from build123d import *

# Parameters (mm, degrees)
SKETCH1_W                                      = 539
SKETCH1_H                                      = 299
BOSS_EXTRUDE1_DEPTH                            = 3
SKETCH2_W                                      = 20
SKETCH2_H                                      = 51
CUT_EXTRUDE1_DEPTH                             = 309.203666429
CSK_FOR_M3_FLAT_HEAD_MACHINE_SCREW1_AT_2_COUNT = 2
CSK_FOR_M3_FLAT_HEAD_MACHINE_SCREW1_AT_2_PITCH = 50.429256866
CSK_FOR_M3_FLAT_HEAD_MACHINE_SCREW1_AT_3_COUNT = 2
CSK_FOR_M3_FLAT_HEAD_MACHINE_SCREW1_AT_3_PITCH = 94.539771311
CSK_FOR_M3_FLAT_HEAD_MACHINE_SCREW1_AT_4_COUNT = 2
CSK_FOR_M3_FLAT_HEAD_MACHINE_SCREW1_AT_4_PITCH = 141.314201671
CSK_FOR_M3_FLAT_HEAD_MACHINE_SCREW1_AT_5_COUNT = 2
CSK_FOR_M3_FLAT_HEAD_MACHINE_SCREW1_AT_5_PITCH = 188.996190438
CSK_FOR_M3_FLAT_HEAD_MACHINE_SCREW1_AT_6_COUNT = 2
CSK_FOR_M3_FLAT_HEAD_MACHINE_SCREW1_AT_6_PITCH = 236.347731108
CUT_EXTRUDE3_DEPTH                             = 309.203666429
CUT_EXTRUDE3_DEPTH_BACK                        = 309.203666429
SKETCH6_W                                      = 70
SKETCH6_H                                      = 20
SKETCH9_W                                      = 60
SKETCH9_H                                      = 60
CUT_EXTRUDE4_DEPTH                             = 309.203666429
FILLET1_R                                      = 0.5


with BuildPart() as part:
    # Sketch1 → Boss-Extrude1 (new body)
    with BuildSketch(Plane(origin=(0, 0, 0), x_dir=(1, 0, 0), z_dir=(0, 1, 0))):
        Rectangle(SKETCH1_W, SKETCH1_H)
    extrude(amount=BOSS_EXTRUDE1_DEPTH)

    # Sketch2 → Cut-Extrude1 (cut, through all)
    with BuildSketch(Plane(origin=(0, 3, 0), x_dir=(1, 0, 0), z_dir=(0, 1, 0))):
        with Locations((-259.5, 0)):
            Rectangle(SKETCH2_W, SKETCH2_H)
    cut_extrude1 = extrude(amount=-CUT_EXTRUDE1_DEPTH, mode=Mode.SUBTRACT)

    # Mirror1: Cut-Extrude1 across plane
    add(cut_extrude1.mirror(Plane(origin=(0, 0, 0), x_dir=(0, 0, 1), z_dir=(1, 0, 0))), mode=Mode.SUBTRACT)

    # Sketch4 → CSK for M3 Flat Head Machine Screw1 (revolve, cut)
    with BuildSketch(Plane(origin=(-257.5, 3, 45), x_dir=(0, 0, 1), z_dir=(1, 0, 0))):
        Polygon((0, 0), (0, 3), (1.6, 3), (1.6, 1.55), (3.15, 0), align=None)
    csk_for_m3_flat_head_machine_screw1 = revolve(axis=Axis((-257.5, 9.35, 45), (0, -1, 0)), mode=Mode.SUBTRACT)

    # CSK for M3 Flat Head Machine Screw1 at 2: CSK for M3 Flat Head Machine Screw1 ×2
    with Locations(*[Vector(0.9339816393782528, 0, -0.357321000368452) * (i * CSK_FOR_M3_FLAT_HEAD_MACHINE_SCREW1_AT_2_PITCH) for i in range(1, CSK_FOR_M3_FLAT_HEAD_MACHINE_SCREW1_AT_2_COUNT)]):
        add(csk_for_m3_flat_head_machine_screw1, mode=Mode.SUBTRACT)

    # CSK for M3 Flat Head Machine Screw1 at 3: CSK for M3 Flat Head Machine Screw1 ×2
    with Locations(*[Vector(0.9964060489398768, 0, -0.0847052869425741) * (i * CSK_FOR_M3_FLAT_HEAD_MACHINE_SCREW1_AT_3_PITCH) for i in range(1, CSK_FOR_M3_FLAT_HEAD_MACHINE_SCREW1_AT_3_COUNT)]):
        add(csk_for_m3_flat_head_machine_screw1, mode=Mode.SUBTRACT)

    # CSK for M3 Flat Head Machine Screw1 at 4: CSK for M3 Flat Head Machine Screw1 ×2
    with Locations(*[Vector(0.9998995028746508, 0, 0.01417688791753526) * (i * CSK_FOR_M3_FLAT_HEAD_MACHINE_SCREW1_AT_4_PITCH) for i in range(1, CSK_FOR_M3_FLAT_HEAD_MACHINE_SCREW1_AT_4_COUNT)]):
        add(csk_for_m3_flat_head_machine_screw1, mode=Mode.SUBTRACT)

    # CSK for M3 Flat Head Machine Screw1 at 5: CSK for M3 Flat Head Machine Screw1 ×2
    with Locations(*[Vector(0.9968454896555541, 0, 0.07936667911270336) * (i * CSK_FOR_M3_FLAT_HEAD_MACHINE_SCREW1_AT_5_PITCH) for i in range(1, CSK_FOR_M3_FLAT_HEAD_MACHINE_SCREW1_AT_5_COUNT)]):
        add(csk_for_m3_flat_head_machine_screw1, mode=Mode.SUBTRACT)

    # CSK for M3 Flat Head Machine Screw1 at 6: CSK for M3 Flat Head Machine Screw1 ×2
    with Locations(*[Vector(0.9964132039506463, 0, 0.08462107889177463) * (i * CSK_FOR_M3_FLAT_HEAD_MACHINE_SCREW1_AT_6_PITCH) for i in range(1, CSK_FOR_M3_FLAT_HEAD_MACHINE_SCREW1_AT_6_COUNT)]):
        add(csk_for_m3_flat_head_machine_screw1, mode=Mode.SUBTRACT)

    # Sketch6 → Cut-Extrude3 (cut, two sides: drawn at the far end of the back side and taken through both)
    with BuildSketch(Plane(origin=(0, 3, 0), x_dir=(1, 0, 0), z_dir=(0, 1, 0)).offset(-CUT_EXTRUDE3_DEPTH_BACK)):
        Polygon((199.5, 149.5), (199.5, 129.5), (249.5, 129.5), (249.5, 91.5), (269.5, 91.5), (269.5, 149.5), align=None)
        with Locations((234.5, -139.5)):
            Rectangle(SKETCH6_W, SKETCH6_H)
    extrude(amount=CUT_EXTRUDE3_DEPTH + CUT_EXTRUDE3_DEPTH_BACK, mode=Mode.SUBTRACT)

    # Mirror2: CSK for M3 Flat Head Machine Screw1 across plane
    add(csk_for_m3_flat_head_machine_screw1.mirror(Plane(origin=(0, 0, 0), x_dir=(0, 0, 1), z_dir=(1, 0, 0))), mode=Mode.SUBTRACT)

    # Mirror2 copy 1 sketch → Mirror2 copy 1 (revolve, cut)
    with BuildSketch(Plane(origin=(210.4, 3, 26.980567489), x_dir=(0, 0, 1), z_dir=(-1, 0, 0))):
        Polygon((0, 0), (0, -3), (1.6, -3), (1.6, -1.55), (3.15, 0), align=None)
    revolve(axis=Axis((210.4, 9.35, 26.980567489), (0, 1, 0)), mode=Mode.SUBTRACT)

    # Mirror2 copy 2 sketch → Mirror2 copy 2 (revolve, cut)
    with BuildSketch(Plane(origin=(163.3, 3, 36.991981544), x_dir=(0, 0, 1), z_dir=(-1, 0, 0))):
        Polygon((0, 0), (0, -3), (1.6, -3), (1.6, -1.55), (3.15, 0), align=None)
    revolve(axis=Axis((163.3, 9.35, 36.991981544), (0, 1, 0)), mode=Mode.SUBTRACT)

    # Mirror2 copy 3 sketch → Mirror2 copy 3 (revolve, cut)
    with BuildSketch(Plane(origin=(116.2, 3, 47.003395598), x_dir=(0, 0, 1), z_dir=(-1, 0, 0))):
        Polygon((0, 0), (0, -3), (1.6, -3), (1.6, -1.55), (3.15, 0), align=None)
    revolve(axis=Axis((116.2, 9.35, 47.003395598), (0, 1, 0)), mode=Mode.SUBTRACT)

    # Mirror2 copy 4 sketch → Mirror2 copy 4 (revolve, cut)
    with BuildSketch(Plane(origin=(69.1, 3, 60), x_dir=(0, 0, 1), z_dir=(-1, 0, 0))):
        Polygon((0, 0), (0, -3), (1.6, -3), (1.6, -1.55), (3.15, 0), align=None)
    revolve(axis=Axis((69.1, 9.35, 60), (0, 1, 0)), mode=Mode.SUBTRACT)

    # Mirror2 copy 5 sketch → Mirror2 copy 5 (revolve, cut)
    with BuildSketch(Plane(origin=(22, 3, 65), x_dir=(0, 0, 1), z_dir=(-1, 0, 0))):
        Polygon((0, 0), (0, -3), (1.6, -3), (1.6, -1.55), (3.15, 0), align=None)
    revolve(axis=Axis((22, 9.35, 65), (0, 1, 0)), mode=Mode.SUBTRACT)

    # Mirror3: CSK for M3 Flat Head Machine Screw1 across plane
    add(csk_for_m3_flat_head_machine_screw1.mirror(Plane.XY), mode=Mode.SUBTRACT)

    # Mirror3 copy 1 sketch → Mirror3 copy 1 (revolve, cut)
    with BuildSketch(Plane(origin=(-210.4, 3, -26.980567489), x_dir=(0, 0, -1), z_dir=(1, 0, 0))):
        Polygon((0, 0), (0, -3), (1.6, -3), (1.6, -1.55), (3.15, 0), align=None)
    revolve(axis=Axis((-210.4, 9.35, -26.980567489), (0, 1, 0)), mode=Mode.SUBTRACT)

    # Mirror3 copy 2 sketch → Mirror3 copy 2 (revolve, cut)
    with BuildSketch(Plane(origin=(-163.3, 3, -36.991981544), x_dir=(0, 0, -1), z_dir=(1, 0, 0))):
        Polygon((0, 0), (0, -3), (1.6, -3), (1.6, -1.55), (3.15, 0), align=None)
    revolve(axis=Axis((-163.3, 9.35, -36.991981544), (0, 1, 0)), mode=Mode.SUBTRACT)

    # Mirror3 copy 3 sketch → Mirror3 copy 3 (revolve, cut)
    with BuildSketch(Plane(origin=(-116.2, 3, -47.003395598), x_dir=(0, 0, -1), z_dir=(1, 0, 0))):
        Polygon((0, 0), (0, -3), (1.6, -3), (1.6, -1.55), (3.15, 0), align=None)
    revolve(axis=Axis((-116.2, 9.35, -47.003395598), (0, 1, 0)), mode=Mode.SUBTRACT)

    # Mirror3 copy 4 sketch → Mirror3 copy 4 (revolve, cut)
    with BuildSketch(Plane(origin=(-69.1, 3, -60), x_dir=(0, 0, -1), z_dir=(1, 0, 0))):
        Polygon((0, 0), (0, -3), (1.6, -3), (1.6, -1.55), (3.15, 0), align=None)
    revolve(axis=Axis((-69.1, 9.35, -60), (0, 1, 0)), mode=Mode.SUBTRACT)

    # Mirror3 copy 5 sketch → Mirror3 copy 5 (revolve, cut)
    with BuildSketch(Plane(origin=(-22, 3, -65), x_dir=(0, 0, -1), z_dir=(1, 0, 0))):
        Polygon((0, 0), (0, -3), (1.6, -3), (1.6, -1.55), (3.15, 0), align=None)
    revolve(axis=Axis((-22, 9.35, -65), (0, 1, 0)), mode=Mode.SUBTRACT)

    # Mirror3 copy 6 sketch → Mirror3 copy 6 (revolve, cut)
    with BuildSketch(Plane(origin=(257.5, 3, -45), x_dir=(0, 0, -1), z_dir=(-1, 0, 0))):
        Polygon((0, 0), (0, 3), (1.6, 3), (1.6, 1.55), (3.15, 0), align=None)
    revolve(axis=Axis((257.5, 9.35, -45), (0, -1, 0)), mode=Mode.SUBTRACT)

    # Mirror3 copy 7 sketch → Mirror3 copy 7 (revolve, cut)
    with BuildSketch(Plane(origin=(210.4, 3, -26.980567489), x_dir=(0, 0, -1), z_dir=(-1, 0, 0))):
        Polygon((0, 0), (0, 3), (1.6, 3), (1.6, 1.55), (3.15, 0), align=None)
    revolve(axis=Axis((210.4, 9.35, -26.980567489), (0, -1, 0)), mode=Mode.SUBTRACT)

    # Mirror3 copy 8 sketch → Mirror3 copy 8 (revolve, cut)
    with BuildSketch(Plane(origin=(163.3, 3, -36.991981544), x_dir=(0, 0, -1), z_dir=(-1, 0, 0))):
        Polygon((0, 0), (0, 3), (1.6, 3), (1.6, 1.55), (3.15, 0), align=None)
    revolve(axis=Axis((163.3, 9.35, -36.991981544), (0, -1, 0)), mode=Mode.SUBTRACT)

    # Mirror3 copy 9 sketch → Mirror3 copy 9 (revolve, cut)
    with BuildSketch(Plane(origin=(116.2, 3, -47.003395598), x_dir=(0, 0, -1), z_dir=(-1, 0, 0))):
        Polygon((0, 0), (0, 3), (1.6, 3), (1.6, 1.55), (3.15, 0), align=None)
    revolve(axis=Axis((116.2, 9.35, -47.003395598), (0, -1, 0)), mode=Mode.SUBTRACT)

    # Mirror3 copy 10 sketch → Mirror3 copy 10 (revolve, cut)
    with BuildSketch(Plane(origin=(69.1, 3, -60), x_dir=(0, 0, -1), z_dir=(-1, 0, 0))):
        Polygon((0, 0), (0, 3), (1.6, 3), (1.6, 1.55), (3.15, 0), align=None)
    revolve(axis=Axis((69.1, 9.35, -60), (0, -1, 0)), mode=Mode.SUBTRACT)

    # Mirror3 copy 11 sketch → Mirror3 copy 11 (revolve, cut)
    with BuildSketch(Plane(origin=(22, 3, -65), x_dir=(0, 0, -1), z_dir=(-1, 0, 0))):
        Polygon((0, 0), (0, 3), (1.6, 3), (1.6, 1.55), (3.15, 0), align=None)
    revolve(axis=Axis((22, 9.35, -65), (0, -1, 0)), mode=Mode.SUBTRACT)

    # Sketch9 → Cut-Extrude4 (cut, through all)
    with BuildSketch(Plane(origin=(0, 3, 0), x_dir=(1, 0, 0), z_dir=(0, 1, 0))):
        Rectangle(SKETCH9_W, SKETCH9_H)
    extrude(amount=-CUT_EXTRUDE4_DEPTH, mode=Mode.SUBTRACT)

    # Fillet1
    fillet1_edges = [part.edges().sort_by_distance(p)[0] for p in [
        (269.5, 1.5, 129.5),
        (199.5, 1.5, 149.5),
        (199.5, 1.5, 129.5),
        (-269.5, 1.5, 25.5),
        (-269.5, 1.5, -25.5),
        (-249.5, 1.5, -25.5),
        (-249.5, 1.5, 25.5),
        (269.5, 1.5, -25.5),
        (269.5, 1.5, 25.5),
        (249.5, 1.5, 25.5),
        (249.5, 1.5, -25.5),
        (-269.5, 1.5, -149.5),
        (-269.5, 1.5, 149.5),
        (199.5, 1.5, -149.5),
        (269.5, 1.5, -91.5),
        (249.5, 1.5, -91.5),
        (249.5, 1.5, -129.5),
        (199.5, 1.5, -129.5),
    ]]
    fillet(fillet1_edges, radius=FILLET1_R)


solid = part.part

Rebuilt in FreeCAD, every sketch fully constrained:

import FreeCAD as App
import Part
import Sketcher

V = App.Vector
Q = App.Units.Quantity


def edges_at(feature, points):
    """Names of the edges that pass closest to the given points."""
    edges = feature.Shape.Edges
    near = lambda p: min(range(len(edges)), key=lambda i: edges[i].distToShape(Part.Vertex(*p))[0])
    return sorted({f"Edge{near(p) + 1}" for p in points})

doc = App.newDocument("Part")
body = doc.addObject("PartDesign::Body", "Body")

sketch1 = body.newObject("Sketcher::SketchObject", "Sketch")
sketch1.AttachmentSupport = (doc.getObject("XZ_Plane"), [""])
sketch1.MapMode = "FlatFace"
sketch1.addGeometry([
    Part.LineSegment(V(-270, -150, 0), V(-270, 150, 0)),
    Part.LineSegment(V(-270, 150, 0), V(270, 150, 0)),
    Part.LineSegment(V(270, 150, 0), V(270, -150, 0)),
    Part.LineSegment(V(270, -150, 0), V(-270, -150, 0)),
], False)
sketch1.addConstraint([
    Sketcher.Constraint("Coincident", 0, 2, 1, 1),
    Sketcher.Constraint("Coincident", 1, 2, 2, 1),
    Sketcher.Constraint("Coincident", 2, 2, 3, 1),
    Sketcher.Constraint("Coincident", 3, 2, 0, 1),
    Sketcher.Constraint("Vertical", 0),
    Sketcher.Constraint("Horizontal", 1),
    Sketcher.Constraint("Vertical", 2),
    Sketcher.Constraint("Horizontal", 3),
    Sketcher.Constraint("Symmetric", 0, 2, 2, 2, -1, 1),
    Sketcher.Constraint("DistanceX", 1, 1, 1, 2, Q("539 mm")),
    Sketcher.Constraint("DistanceY", 0, 1, 0, 2, Q("299 mm")),
])
pad1 = body.newObject("PartDesign::Pad", "Pad")
pad1.Profile = sketch1
pad1.Length = 3
pad1.Reversed = True

sketch2 = body.newObject("Sketcher::SketchObject", "Sketch001")
sketch2.AttachmentSupport = (doc.getObject("XZ_Plane"), [""])
sketch2.MapMode = "FlatFace"
sketch2.AttachmentOffset = App.Placement(V(0, 0, -3), App.Rotation())
sketch2.addGeometry([
    Part.LineSegment(V(-270, -26, 0), V(-270, 26, 0)),
    Part.LineSegment(V(-270, 26, 0), V(-250, 26, 0)),
    Part.LineSegment(V(-250, 26, 0), V(-250, -26, 0)),
    Part.LineSegment(V(-250, -26, 0), V(-270, -26, 0)),
], False)
sketch2.addConstraint([
    Sketcher.Constraint("Coincident", 0, 2, 1, 1),
    Sketcher.Constraint("Coincident", 1, 2, 2, 1),
    Sketcher.Constraint("Coincident", 2, 2, 3, 1),
    Sketcher.Constraint("Coincident", 3, 2, 0, 1),
    Sketcher.Constraint("Vertical", 0),
    Sketcher.Constraint("Horizontal", 1),
    Sketcher.Constraint("Vertical", 2),
    Sketcher.Constraint("Horizontal", 3),
    Sketcher.Constraint("DistanceX", 1, 1, 1, 2, Q("20 mm")),
    Sketcher.Constraint("DistanceY", 0, 1, 0, 2, Q("51 mm")),
    Sketcher.Constraint("DistanceX", 0, 2, -1, 1, Q("269.5 mm")),
    Sketcher.Constraint("DistanceY", -1, 1, 0, 2, Q("25.5 mm")),
])
pocket1 = body.newObject("PartDesign::Pocket", "Pocket")
pocket1.Profile = sketch2
pocket1.Type = "ThroughAll"
pocket1.Reversed = True
doc.recompute()

mirrored = body.newObject("PartDesign::Mirrored", "Mirrored")
mirrored.Originals = [pocket1]
mirrored.MirrorPlane = (doc.getObject("YZ_Plane"), [""])
body.Tip = mirrored

sketch3 = body.newObject("Sketcher::SketchObject", "Sketch002")
sketch3.AttachmentSupport = (doc.getObject("YZ_Plane"), [""])
sketch3.MapMode = "FlatFace"
sketch3.AttachmentOffset = App.Placement(V(0, 0, -257.5), App.Rotation())
sketch3.addGeometry([
    Part.LineSegment(V(0, 45, 0), V(3, 45, 0)),
    Part.LineSegment(V(3, 45, 0), V(3, 48.1, 0)),
    Part.LineSegment(V(3, 48.1, 0), V(1.4, 46.6, 0)),
    Part.LineSegment(V(1.4, 46.6, 0), V(0, 46.6, 0)),
    Part.LineSegment(V(0, 46.6, 0), V(0, 45, 0)),
], False)
sketch3.addGeometry(Part.LineSegment(V(3, 45, 0), V(0, 45, 0)), True)
sketch3.addConstraint([
    Sketcher.Constraint("Coincident", 0, 2, 1, 1),
    Sketcher.Constraint("Coincident", 1, 2, 2, 1),
    Sketcher.Constraint("Coincident", 2, 2, 3, 1),
    Sketcher.Constraint("Coincident", 3, 2, 4, 1),
    Sketcher.Constraint("Coincident", 4, 2, 0, 1),
    Sketcher.Constraint("Horizontal", 0),
    Sketcher.Constraint("Vertical", 1),
    Sketcher.Constraint("Horizontal", 3),
    Sketcher.Constraint("Vertical", 4),
    Sketcher.Constraint("Horizontal", 5),
    Sketcher.Constraint("Coincident", 5, 1, 0, 2),
    Sketcher.Constraint("PointOnObject", 3, 2, -2),
    Sketcher.Constraint("PointOnObject", 5, 2, -2),
    Sketcher.Constraint("DistanceX", 0, 1, 0, 2, Q("3 mm")),
    Sketcher.Constraint("Angle", 2, Q("-135 deg")),
    Sketcher.Constraint("DistanceY", 4, 2, 4, 1, Q("1.6 mm")),
    Sketcher.Constraint("DistanceY", -1, 1, 0, 2, Q("45 mm")),
    Sketcher.Constraint("DistanceX", 3, 2, 3, 1, Q("1.45 mm")),
])
groove = body.newObject("PartDesign::Groove", "Groove")
groove.Profile = sketch3
groove.ReferenceAxis = (sketch3, ["Axis0"])
groove.Angle = 360
doc.recompute()

datumline = body.newObject("PartDesign::Line", "DatumLine")
datumline.Placement = App.Placement(V(0, 0, 0), App.Rotation(V(0, 0, 1), V(0.933981639, 0, -0.357321)))
linearpattern = body.newObject("PartDesign::LinearPattern", "LinearPattern")
linearpattern.Originals = [groove]
linearpattern.Direction = (datumline, [""])
linearpattern.Mode = "offset"
linearpattern.Offset = 50.429257
linearpattern.Occurrences = 2
body.Tip = linearpattern
doc.recompute()

datumline2 = body.newObject("PartDesign::Line", "DatumLine001")
datumline2.Placement = App.Placement(V(0, 0, 0), App.Rotation(V(0, 0, 1), V(0.996406049, 0, -0.084705287)))
linearpattern2 = body.newObject("PartDesign::LinearPattern", "LinearPattern001")
linearpattern2.Originals = [groove]
linearpattern2.Direction = (datumline2, [""])
linearpattern2.Mode = "offset"
linearpattern2.Offset = 94.539771
linearpattern2.Occurrences = 2
body.Tip = linearpattern2
doc.recompute()

datumline3 = body.newObject("PartDesign::Line", "DatumLine002")
datumline3.Placement = App.Placement(V(0, 0, 0), App.Rotation(V(0, 0, 1), V(0.999899503, 0, 0.014176888)))
linearpattern3 = body.newObject("PartDesign::LinearPattern", "LinearPattern002")
linearpattern3.Originals = [groove]
linearpattern3.Direction = (datumline3, [""])
linearpattern3.Mode = "offset"
linearpattern3.Offset = 141.314202
linearpattern3.Occurrences = 2
body.Tip = linearpattern3
doc.recompute()

datumline4 = body.newObject("PartDesign::Line", "DatumLine003")
datumline4.Placement = App.Placement(V(0, 0, 0), App.Rotation(V(0, 0, 1), V(0.99684549, 0, 0.079366679)))
linearpattern4 = body.newObject("PartDesign::LinearPattern", "LinearPattern003")
linearpattern4.Originals = [groove]
linearpattern4.Direction = (datumline4, [""])
linearpattern4.Mode = "offset"
linearpattern4.Offset = 188.99619
linearpattern4.Occurrences = 2
body.Tip = linearpattern4
doc.recompute()

datumline5 = body.newObject("PartDesign::Line", "DatumLine004")
datumline5.Placement = App.Placement(V(0, 0, 0), App.Rotation(V(0, 0, 1), V(0.996413204, 0, 0.084621079)))
linearpattern5 = body.newObject("PartDesign::LinearPattern", "LinearPattern004")
linearpattern5.Originals = [groove]
linearpattern5.Direction = (datumline5, [""])
linearpattern5.Mode = "offset"
linearpattern5.Offset = 236.347731
linearpattern5.Occurrences = 2
body.Tip = linearpattern5

sketch4 = body.newObject("Sketcher::SketchObject", "Sketch003")
sketch4.AttachmentSupport = (doc.getObject("XZ_Plane"), [""])
sketch4.MapMode = "FlatFace"
sketch4.AttachmentOffset = App.Placement(V(0, 0, -3), App.Rotation())
sketch4.addGeometry([
    Part.LineSegment(V(200, -150, 0), V(200, -130, 0)),
    Part.LineSegment(V(200, -130, 0), V(250, -130, 0)),
    Part.LineSegment(V(250, -130, 0), V(250, -92, 0)),
    Part.LineSegment(V(250, -92, 0), V(270, -92, 0)),
    Part.LineSegment(V(270, -92, 0), V(270, -150, 0)),
    Part.LineSegment(V(270, -150, 0), V(200, -150, 0)),
    Part.LineSegment(V(200, 130, 0), V(200, 150, 0)),
    Part.LineSegment(V(200, 150, 0), V(270, 150, 0)),
    Part.LineSegment(V(270, 150, 0), V(270, 130, 0)),
    Part.LineSegment(V(270, 130, 0), V(200, 130, 0)),
], False)
sketch4.addConstraint([
    Sketcher.Constraint("Coincident", 0, 2, 1, 1),
    Sketcher.Constraint("Coincident", 1, 2, 2, 1),
    Sketcher.Constraint("Coincident", 2, 2, 3, 1),
    Sketcher.Constraint("Coincident", 3, 2, 4, 1),
    Sketcher.Constraint("Coincident", 4, 2, 5, 1),
    Sketcher.Constraint("Coincident", 5, 2, 0, 1),
    Sketcher.Constraint("Coincident", 6, 2, 7, 1),
    Sketcher.Constraint("Coincident", 7, 2, 8, 1),
    Sketcher.Constraint("Coincident", 8, 2, 9, 1),
    Sketcher.Constraint("Coincident", 9, 2, 6, 1),
    Sketcher.Constraint("Vertical", 0),
    Sketcher.Constraint("Horizontal", 1),
    Sketcher.Constraint("Vertical", 2),
    Sketcher.Constraint("Horizontal", 3),
    Sketcher.Constraint("Vertical", 4),
    Sketcher.Constraint("Horizontal", 5),
    Sketcher.Constraint("Vertical", 6),
    Sketcher.Constraint("Horizontal", 7),
    Sketcher.Constraint("Vertical", 8),
    Sketcher.Constraint("Horizontal", 9),
    Sketcher.Constraint("Symmetric", 5, 2, 6, 2, -1),
    Sketcher.Constraint("Vertical", 4, 2, 7, 2),
    Sketcher.Constraint("Equal", 3, 0),
    Sketcher.Constraint("Equal", 0, 6),
    Sketcher.Constraint("DistanceX", 1, 1, 1, 2, Q("50 mm")),
    Sketcher.Constraint("DistanceX", 3, 1, 3, 2, Q("20 mm")),
    Sketcher.Constraint("DistanceY", 2, 1, 2, 2, Q("38 mm")),
    Sketcher.Constraint("DistanceY", 2, 2, 6, 2, Q("241 mm")),
    Sketcher.Constraint("DistanceX", -1, 1, 0, 2, Q("199.5 mm")),
])
pocket2 = body.newObject("PartDesign::Pocket", "Pocket001")
pocket2.Profile = sketch4
pocket2.Type = "ThroughAll"
pocket2.Midplane = True
doc.recompute()

mirrored2 = body.newObject("PartDesign::Mirrored", "Mirrored001")
mirrored2.Originals = [groove]
mirrored2.MirrorPlane = (doc.getObject("YZ_Plane"), [""])
body.Tip = mirrored2

sketch5 = body.newObject("Sketcher::SketchObject", "Sketch004")
sketch5.AttachmentSupport = (doc.getObject("YZ_Plane"), [""])
sketch5.MapMode = "FlatFace"
sketch5.AttachmentOffset = App.Placement(V(0, 0, 210.4), App.Rotation())
sketch5.addGeometry([
    Part.LineSegment(V(3, 27, 0), V(0, 27, 0)),
    Part.LineSegment(V(0, 27, 0), V(0, 28.6, 0)),
    Part.LineSegment(V(0, 28.6, 0), V(1.4, 28.6, 0)),
    Part.LineSegment(V(1.4, 28.6, 0), V(3, 30.1, 0)),
    Part.LineSegment(V(3, 30.1, 0), V(3, 27, 0)),
], False)
sketch5.addGeometry(Part.LineSegment(V(0, 27, 0), V(3, 27, 0)), True)
sketch5.addConstraint([
    Sketcher.Constraint("Coincident", 0, 2, 1, 1),
    Sketcher.Constraint("Coincident", 1, 2, 2, 1),
    Sketcher.Constraint("Coincident", 2, 2, 3, 1),
    Sketcher.Constraint("Coincident", 3, 2, 4, 1),
    Sketcher.Constraint("Coincident", 4, 2, 0, 1),
    Sketcher.Constraint("Horizontal", 0),
    Sketcher.Constraint("Vertical", 1),
    Sketcher.Constraint("Horizontal", 2),
    Sketcher.Constraint("Vertical", 4),
    Sketcher.Constraint("Horizontal", 5),
    Sketcher.Constraint("Coincident", 5, 1, 0, 2),
    Sketcher.Constraint("PointOnObject", 0, 2, -2),
    Sketcher.Constraint("Vertical", 3, 2, 5, 2),
    Sketcher.Constraint("DistanceX", 0, 2, 0, 1, Q("3 mm")),
    Sketcher.Constraint("Angle", 3, Q("45 deg")),
    Sketcher.Constraint("DistanceY", 1, 1, 1, 2, Q("1.6 mm")),
    Sketcher.Constraint("DistanceX", 2, 1, 2, 2, Q("1.45 mm")),
    Sketcher.Constraint("DistanceY", -1, 1, 0, 2, Q("26.980567 mm")),
])
groove2 = body.newObject("PartDesign::Groove", "Groove001")
groove2.Profile = sketch5
groove2.ReferenceAxis = (sketch5, ["Axis0"])
groove2.Angle = 360

sketch6 = body.newObject("Sketcher::SketchObject", "Sketch005")
sketch6.AttachmentSupport = (doc.getObject("YZ_Plane"), [""])
sketch6.MapMode = "FlatFace"
sketch6.AttachmentOffset = App.Placement(V(0, 0, 163.3), App.Rotation())
sketch6.addGeometry([
    Part.LineSegment(V(3, 37, 0), V(0, 37, 0)),
    Part.LineSegment(V(0, 37, 0), V(0, 38.6, 0)),
    Part.LineSegment(V(0, 38.6, 0), V(1.4, 38.6, 0)),
    Part.LineSegment(V(1.4, 38.6, 0), V(3, 40.1, 0)),
    Part.LineSegment(V(3, 40.1, 0), V(3, 37, 0)),
], False)
sketch6.addGeometry(Part.LineSegment(V(0, 37, 0), V(3, 37, 0)), True)
sketch6.addConstraint([
    Sketcher.Constraint("Coincident", 0, 2, 1, 1),
    Sketcher.Constraint("Coincident", 1, 2, 2, 1),
    Sketcher.Constraint("Coincident", 2, 2, 3, 1),
    Sketcher.Constraint("Coincident", 3, 2, 4, 1),
    Sketcher.Constraint("Coincident", 4, 2, 0, 1),
    Sketcher.Constraint("Horizontal", 0),
    Sketcher.Constraint("Vertical", 1),
    Sketcher.Constraint("Horizontal", 2),
    Sketcher.Constraint("Vertical", 4),
    Sketcher.Constraint("Horizontal", 5),
    Sketcher.Constraint("Coincident", 5, 1, 0, 2),
    Sketcher.Constraint("PointOnObject", 0, 2, -2),
    Sketcher.Constraint("Vertical", 3, 2, 5, 2),
    Sketcher.Constraint("DistanceX", 0, 2, 0, 1, Q("3 mm")),
    Sketcher.Constraint("Angle", 3, Q("45 deg")),
    Sketcher.Constraint("DistanceY", 1, 1, 1, 2, Q("1.6 mm")),
    Sketcher.Constraint("DistanceX", 2, 1, 2, 2, Q("1.45 mm")),
    Sketcher.Constraint("DistanceY", -1, 1, 0, 2, Q("36.991982 mm")),
])
groove3 = body.newObject("PartDesign::Groove", "Groove002")
groove3.Profile = sketch6
groove3.ReferenceAxis = (sketch6, ["Axis0"])
groove3.Angle = 360

sketch7 = body.newObject("Sketcher::SketchObject", "Sketch006")
sketch7.AttachmentSupport = (doc.getObject("YZ_Plane"), [""])
sketch7.MapMode = "FlatFace"
sketch7.AttachmentOffset = App.Placement(V(0, 0, 116.2), App.Rotation())
sketch7.addGeometry([
    Part.LineSegment(V(3, 47, 0), V(0, 47, 0)),
    Part.LineSegment(V(0, 47, 0), V(0, 48.6, 0)),
    Part.LineSegment(V(0, 48.6, 0), V(1.4, 48.6, 0)),
    Part.LineSegment(V(1.4, 48.6, 0), V(3, 50.2, 0)),
    Part.LineSegment(V(3, 50.2, 0), V(3, 47, 0)),
], False)
sketch7.addGeometry(Part.LineSegment(V(0, 47, 0), V(3, 47, 0)), True)
sketch7.addConstraint([
    Sketcher.Constraint("Coincident", 0, 2, 1, 1),
    Sketcher.Constraint("Coincident", 1, 2, 2, 1),
    Sketcher.Constraint("Coincident", 2, 2, 3, 1),
    Sketcher.Constraint("Coincident", 3, 2, 4, 1),
    Sketcher.Constraint("Coincident", 4, 2, 0, 1),
    Sketcher.Constraint("Horizontal", 0),
    Sketcher.Constraint("Vertical", 1),
    Sketcher.Constraint("Horizontal", 2),
    Sketcher.Constraint("Vertical", 4),
    Sketcher.Constraint("Horizontal", 5),
    Sketcher.Constraint("Coincident", 5, 1, 0, 2),
    Sketcher.Constraint("PointOnObject", 0, 2, -2),
    Sketcher.Constraint("Vertical", 3, 2, 5, 2),
    Sketcher.Constraint("DistanceX", 0, 2, 0, 1, Q("3 mm")),
    Sketcher.Constraint("Angle", 3, Q("45 deg")),
    Sketcher.Constraint("DistanceY", 1, 1, 1, 2, Q("1.6 mm")),
    Sketcher.Constraint("DistanceX", 2, 1, 2, 2, Q("1.45 mm")),
    Sketcher.Constraint("DistanceY", -1, 1, 0, 2, Q("47.003396 mm")),
])
groove4 = body.newObject("PartDesign::Groove", "Groove003")
groove4.Profile = sketch7
groove4.ReferenceAxis = (sketch7, ["Axis0"])
groove4.Angle = 360

sketch8 = body.newObject("Sketcher::SketchObject", "Sketch007")
sketch8.AttachmentSupport = (doc.getObject("YZ_Plane"), [""])
sketch8.MapMode = "FlatFace"
sketch8.AttachmentOffset = App.Placement(V(0, 0, 69.1), App.Rotation())
sketch8.addGeometry([
    Part.LineSegment(V(3, 60, 0), V(0, 60, 0)),
    Part.LineSegment(V(0, 60, 0), V(0, 61.6, 0)),
    Part.LineSegment(V(0, 61.6, 0), V(1.4, 61.6, 0)),
    Part.LineSegment(V(1.4, 61.6, 0), V(3, 63.1, 0)),
    Part.LineSegment(V(3, 63.1, 0), V(3, 60, 0)),
], False)
sketch8.addGeometry(Part.LineSegment(V(0, 60, 0), V(3, 60, 0)), True)
sketch8.addConstraint([
    Sketcher.Constraint("Coincident", 0, 2, 1, 1),
    Sketcher.Constraint("Coincident", 1, 2, 2, 1),
    Sketcher.Constraint("Coincident", 2, 2, 3, 1),
    Sketcher.Constraint("Coincident", 3, 2, 4, 1),
    Sketcher.Constraint("Coincident", 4, 2, 0, 1),
    Sketcher.Constraint("Horizontal", 0),
    Sketcher.Constraint("Vertical", 1),
    Sketcher.Constraint("Horizontal", 2),
    Sketcher.Constraint("Vertical", 4),
    Sketcher.Constraint("Horizontal", 5),
    Sketcher.Constraint("Coincident", 5, 1, 0, 2),
    Sketcher.Constraint("PointOnObject", 0, 2, -2),
    Sketcher.Constraint("Vertical", 3, 2, 5, 2),
    Sketcher.Constraint("DistanceX", 0, 2, 0, 1, Q("3 mm")),
    Sketcher.Constraint("Angle", 3, Q("45 deg")),
    Sketcher.Constraint("DistanceY", 1, 1, 1, 2, Q("1.6 mm")),
    Sketcher.Constraint("DistanceY", -1, 1, 0, 2, Q("60 mm")),
    Sketcher.Constraint("DistanceX", 2, 1, 2, 2, Q("1.45 mm")),
])
groove5 = body.newObject("PartDesign::Groove", "Groove004")
groove5.Profile = sketch8
groove5.ReferenceAxis = (sketch8, ["Axis0"])
groove5.Angle = 360

sketch9 = body.newObject("Sketcher::SketchObject", "Sketch008")
sketch9.AttachmentSupport = (doc.getObject("YZ_Plane"), [""])
sketch9.MapMode = "FlatFace"
sketch9.AttachmentOffset = App.Placement(V(0, 0, 22), App.Rotation())
sketch9.addGeometry([
    Part.LineSegment(V(3, 65, 0), V(0, 65, 0)),
    Part.LineSegment(V(0, 65, 0), V(0, 66.6, 0)),
    Part.LineSegment(V(0, 66.6, 0), V(1.4, 66.6, 0)),
    Part.LineSegment(V(1.4, 66.6, 0), V(3, 68.2, 0)),
    Part.LineSegment(V(3, 68.2, 0), V(3, 65, 0)),
], False)
sketch9.addGeometry(Part.LineSegment(V(0, 65, 0), V(3, 65, 0)), True)
sketch9.addConstraint([
    Sketcher.Constraint("Coincident", 0, 2, 1, 1),
    Sketcher.Constraint("Coincident", 1, 2, 2, 1),
    Sketcher.Constraint("Coincident", 2, 2, 3, 1),
    Sketcher.Constraint("Coincident", 3, 2, 4, 1),
    Sketcher.Constraint("Coincident", 4, 2, 0, 1),
    Sketcher.Constraint("Horizontal", 0),
    Sketcher.Constraint("Vertical", 1),
    Sketcher.Constraint("Horizontal", 2),
    Sketcher.Constraint("Vertical", 4),
    Sketcher.Constraint("Horizontal", 5),
    Sketcher.Constraint("Coincident", 5, 1, 0, 2),
    Sketcher.Constraint("PointOnObject", 0, 2, -2),
    Sketcher.Constraint("Vertical", 3, 2, 5, 2),
    Sketcher.Constraint("DistanceX", 0, 2, 0, 1, Q("3 mm")),
    Sketcher.Constraint("Angle", 3, Q("45 deg")),
    Sketcher.Constraint("DistanceY", 1, 1, 1, 2, Q("1.6 mm")),
    Sketcher.Constraint("DistanceY", -1, 1, 0, 2, Q("65 mm")),
    Sketcher.Constraint("DistanceX", 2, 1, 2, 2, Q("1.45 mm")),
])
groove6 = body.newObject("PartDesign::Groove", "Groove005")
groove6.Profile = sketch9
groove6.ReferenceAxis = (sketch9, ["Axis0"])
groove6.Angle = 360
doc.recompute()

mirrored3 = body.newObject("PartDesign::Mirrored", "Mirrored002")
mirrored3.Originals = [groove]
mirrored3.MirrorPlane = (doc.getObject("XY_Plane"), [""])
body.Tip = mirrored3

sketch10 = body.newObject("Sketcher::SketchObject", "Sketch009")
sketch10.AttachmentSupport = (doc.getObject("YZ_Plane"), [""])
sketch10.MapMode = "FlatFace"
sketch10.AttachmentOffset = App.Placement(V(0, 0, -210.4), App.Rotation())
sketch10.addGeometry([
    Part.LineSegment(V(3, -27, 0), V(0, -27, 0)),
    Part.LineSegment(V(0, -27, 0), V(0, -28.6, 0)),
    Part.LineSegment(V(0, -28.6, 0), V(1.4, -28.6, 0)),
    Part.LineSegment(V(1.4, -28.6, 0), V(3, -30.1, 0)),
    Part.LineSegment(V(3, -30.1, 0), V(3, -27, 0)),
], False)
sketch10.addGeometry(Part.LineSegment(V(0, -27, 0), V(3, -27, 0)), True)
sketch10.addConstraint([
    Sketcher.Constraint("Coincident", 0, 2, 1, 1),
    Sketcher.Constraint("Coincident", 1, 2, 2, 1),
    Sketcher.Constraint("Coincident", 2, 2, 3, 1),
    Sketcher.Constraint("Coincident", 3, 2, 4, 1),
    Sketcher.Constraint("Coincident", 4, 2, 0, 1),
    Sketcher.Constraint("Horizontal", 0),
    Sketcher.Constraint("Vertical", 1),
    Sketcher.Constraint("Horizontal", 2),
    Sketcher.Constraint("Vertical", 4),
    Sketcher.Constraint("Horizontal", 5),
    Sketcher.Constraint("Coincident", 5, 1, 0, 2),
    Sketcher.Constraint("PointOnObject", 0, 2, -2),
    Sketcher.Constraint("Vertical", 3, 2, 5, 2),
    Sketcher.Constraint("DistanceX", 0, 2, 0, 1, Q("3 mm")),
    Sketcher.Constraint("Angle", 3, Q("-45 deg")),
    Sketcher.Constraint("DistanceY", 1, 2, 1, 1, Q("1.6 mm")),
    Sketcher.Constraint("DistanceX", 2, 1, 2, 2, Q("1.45 mm")),
    Sketcher.Constraint("DistanceY", 0, 2, -1, 1, Q("26.980567 mm")),
])
groove7 = body.newObject("PartDesign::Groove", "Groove006")
groove7.Profile = sketch10
groove7.ReferenceAxis = (sketch10, ["Axis0"])
groove7.Angle = 360

sketch11 = body.newObject("Sketcher::SketchObject", "Sketch010")
sketch11.AttachmentSupport = (doc.getObject("YZ_Plane"), [""])
sketch11.MapMode = "FlatFace"
sketch11.AttachmentOffset = App.Placement(V(0, 0, -163.3), App.Rotation())
sketch11.addGeometry([
    Part.LineSegment(V(3, -37, 0), V(0, -37, 0)),
    Part.LineSegment(V(0, -37, 0), V(0, -38.6, 0)),
    Part.LineSegment(V(0, -38.6, 0), V(1.4, -38.6, 0)),
    Part.LineSegment(V(1.4, -38.6, 0), V(3, -40.1, 0)),
    Part.LineSegment(V(3, -40.1, 0), V(3, -37, 0)),
], False)
sketch11.addGeometry(Part.LineSegment(V(0, -37, 0), V(3, -37, 0)), True)
sketch11.addConstraint([
    Sketcher.Constraint("Coincident", 0, 2, 1, 1),
    Sketcher.Constraint("Coincident", 1, 2, 2, 1),
    Sketcher.Constraint("Coincident", 2, 2, 3, 1),
    Sketcher.Constraint("Coincident", 3, 2, 4, 1),
    Sketcher.Constraint("Coincident", 4, 2, 0, 1),
    Sketcher.Constraint("Horizontal", 0),
    Sketcher.Constraint("Vertical", 1),
    Sketcher.Constraint("Horizontal", 2),
    Sketcher.Constraint("Vertical", 4),
    Sketcher.Constraint("Horizontal", 5),
    Sketcher.Constraint("Coincident", 5, 1, 0, 2),
    Sketcher.Constraint("PointOnObject", 0, 2, -2),
    Sketcher.Constraint("Vertical", 3, 2, 5, 2),
    Sketcher.Constraint("DistanceX", 0, 2, 0, 1, Q("3 mm")),
    Sketcher.Constraint("Angle", 3, Q("-45 deg")),
    Sketcher.Constraint("DistanceY", 1, 2, 1, 1, Q("1.6 mm")),
    Sketcher.Constraint("DistanceX", 2, 1, 2, 2, Q("1.45 mm")),
    Sketcher.Constraint("DistanceY", 0, 2, -1, 1, Q("36.991982 mm")),
])
groove8 = body.newObject("PartDesign::Groove", "Groove007")
groove8.Profile = sketch11
groove8.ReferenceAxis = (sketch11, ["Axis0"])
groove8.Angle = 360

sketch12 = body.newObject("Sketcher::SketchObject", "Sketch011")
sketch12.AttachmentSupport = (doc.getObject("YZ_Plane"), [""])
sketch12.MapMode = "FlatFace"
sketch12.AttachmentOffset = App.Placement(V(0, 0, -116.2), App.Rotation())
sketch12.addGeometry([
    Part.LineSegment(V(3, -47, 0), V(0, -47, 0)),
    Part.LineSegment(V(0, -47, 0), V(0, -48.6, 0)),
    Part.LineSegment(V(0, -48.6, 0), V(1.4, -48.6, 0)),
    Part.LineSegment(V(1.4, -48.6, 0), V(3, -50.2, 0)),
    Part.LineSegment(V(3, -50.2, 0), V(3, -47, 0)),
], False)
sketch12.addGeometry(Part.LineSegment(V(0, -47, 0), V(3, -47, 0)), True)
sketch12.addConstraint([
    Sketcher.Constraint("Coincident", 0, 2, 1, 1),
    Sketcher.Constraint("Coincident", 1, 2, 2, 1),
    Sketcher.Constraint("Coincident", 2, 2, 3, 1),
    Sketcher.Constraint("Coincident", 3, 2, 4, 1),
    Sketcher.Constraint("Coincident", 4, 2, 0, 1),
    Sketcher.Constraint("Horizontal", 0),
    Sketcher.Constraint("Vertical", 1),
    Sketcher.Constraint("Horizontal", 2),
    Sketcher.Constraint("Vertical", 4),
    Sketcher.Constraint("Horizontal", 5),
    Sketcher.Constraint("Coincident", 5, 1, 0, 2),
    Sketcher.Constraint("PointOnObject", 0, 2, -2),
    Sketcher.Constraint("Vertical", 3, 2, 5, 2),
    Sketcher.Constraint("DistanceX", 0, 2, 0, 1, Q("3 mm")),
    Sketcher.Constraint("Angle", 3, Q("-45 deg")),
    Sketcher.Constraint("DistanceY", 1, 2, 1, 1, Q("1.6 mm")),
    Sketcher.Constraint("DistanceX", 2, 1, 2, 2, Q("1.45 mm")),
    Sketcher.Constraint("DistanceY", 0, 2, -1, 1, Q("47.003396 mm")),
])
groove9 = body.newObject("PartDesign::Groove", "Groove008")
groove9.Profile = sketch12
groove9.ReferenceAxis = (sketch12, ["Axis0"])
groove9.Angle = 360

sketch13 = body.newObject("Sketcher::SketchObject", "Sketch012")
sketch13.AttachmentSupport = (doc.getObject("YZ_Plane"), [""])
sketch13.MapMode = "FlatFace"
sketch13.AttachmentOffset = App.Placement(V(0, 0, -69.1), App.Rotation())
sketch13.addGeometry([
    Part.LineSegment(V(3, -60, 0), V(0, -60, 0)),
    Part.LineSegment(V(0, -60, 0), V(0, -61.6, 0)),
    Part.LineSegment(V(0, -61.6, 0), V(1.4, -61.6, 0)),
    Part.LineSegment(V(1.4, -61.6, 0), V(3, -63.1, 0)),
    Part.LineSegment(V(3, -63.1, 0), V(3, -60, 0)),
], False)
sketch13.addGeometry(Part.LineSegment(V(0, -60, 0), V(3, -60, 0)), True)
sketch13.addConstraint([
    Sketcher.Constraint("Coincident", 0, 2, 1, 1),
    Sketcher.Constraint("Coincident", 1, 2, 2, 1),
    Sketcher.Constraint("Coincident", 2, 2, 3, 1),
    Sketcher.Constraint("Coincident", 3, 2, 4, 1),
    Sketcher.Constraint("Coincident", 4, 2, 0, 1),
    Sketcher.Constraint("Horizontal", 0),
    Sketcher.Constraint("Vertical", 1),
    Sketcher.Constraint("Horizontal", 2),
    Sketcher.Constraint("Vertical", 4),
    Sketcher.Constraint("Horizontal", 5),
    Sketcher.Constraint("Coincident", 5, 1, 0, 2),
    Sketcher.Constraint("PointOnObject", 0, 2, -2),
    Sketcher.Constraint("Vertical", 3, 2, 5, 2),
    Sketcher.Constraint("DistanceX", 0, 2, 0, 1, Q("3 mm")),
    Sketcher.Constraint("Angle", 3, Q("-45 deg")),
    Sketcher.Constraint("DistanceY", 1, 2, 1, 1, Q("1.6 mm")),
    Sketcher.Constraint("DistanceY", 0, 2, -1, 1, Q("60 mm")),
    Sketcher.Constraint("DistanceX", 2, 1, 2, 2, Q("1.45 mm")),
])
groove10 = body.newObject("PartDesign::Groove", "Groove009")
groove10.Profile = sketch13
groove10.ReferenceAxis = (sketch13, ["Axis0"])
groove10.Angle = 360

sketch14 = body.newObject("Sketcher::SketchObject", "Sketch013")
sketch14.AttachmentSupport = (doc.getObject("YZ_Plane"), [""])
sketch14.MapMode = "FlatFace"
sketch14.AttachmentOffset = App.Placement(V(0, 0, -22), App.Rotation())
sketch14.addGeometry([
    Part.LineSegment(V(3, -65, 0), V(0, -65, 0)),
    Part.LineSegment(V(0, -65, 0), V(0, -66.6, 0)),
    Part.LineSegment(V(0, -66.6, 0), V(1.4, -66.6, 0)),
    Part.LineSegment(V(1.4, -66.6, 0), V(3, -68.2, 0)),
    Part.LineSegment(V(3, -68.2, 0), V(3, -65, 0)),
], False)
sketch14.addGeometry(Part.LineSegment(V(0, -65, 0), V(3, -65, 0)), True)
sketch14.addConstraint([
    Sketcher.Constraint("Coincident", 0, 2, 1, 1),
    Sketcher.Constraint("Coincident", 1, 2, 2, 1),
    Sketcher.Constraint("Coincident", 2, 2, 3, 1),
    Sketcher.Constraint("Coincident", 3, 2, 4, 1),
    Sketcher.Constraint("Coincident", 4, 2, 0, 1),
    Sketcher.Constraint("Horizontal", 0),
    Sketcher.Constraint("Vertical", 1),
    Sketcher.Constraint("Horizontal", 2),
    Sketcher.Constraint("Vertical", 4),
    Sketcher.Constraint("Horizontal", 5),
    Sketcher.Constraint("Coincident", 5, 1, 0, 2),
    Sketcher.Constraint("PointOnObject", 0, 2, -2),
    Sketcher.Constraint("Vertical", 3, 2, 5, 2),
    Sketcher.Constraint("DistanceX", 0, 2, 0, 1, Q("3 mm")),
    Sketcher.Constraint("Angle", 3, Q("-45 deg")),
    Sketcher.Constraint("DistanceY", 1, 2, 1, 1, Q("1.6 mm")),
    Sketcher.Constraint("DistanceY", 0, 2, -1, 1, Q("65 mm")),
    Sketcher.Constraint("DistanceX", 2, 1, 2, 2, Q("1.45 mm")),
])
groove11 = body.newObject("PartDesign::Groove", "Groove010")
groove11.Profile = sketch14
groove11.ReferenceAxis = (sketch14, ["Axis0"])
groove11.Angle = 360

sketch15 = body.newObject("Sketcher::SketchObject", "Sketch014")
sketch15.AttachmentSupport = (doc.getObject("YZ_Plane"), [""])
sketch15.MapMode = "FlatFace"
sketch15.AttachmentOffset = App.Placement(V(0, 0, 257.5), App.Rotation())
sketch15.addGeometry([
    Part.LineSegment(V(0, -45, 0), V(3, -45, 0)),
    Part.LineSegment(V(3, -45, 0), V(3, -48.1, 0)),
    Part.LineSegment(V(3, -48.1, 0), V(1.4, -46.6, 0)),
    Part.LineSegment(V(1.4, -46.6, 0), V(0, -46.6, 0)),
    Part.LineSegment(V(0, -46.6, 0), V(0, -45, 0)),
], False)
sketch15.addGeometry(Part.LineSegment(V(3, -45, 0), V(0, -45, 0)), True)
sketch15.addConstraint([
    Sketcher.Constraint("Coincident", 0, 2, 1, 1),
    Sketcher.Constraint("Coincident", 1, 2, 2, 1),
    Sketcher.Constraint("Coincident", 2, 2, 3, 1),
    Sketcher.Constraint("Coincident", 3, 2, 4, 1),
    Sketcher.Constraint("Coincident", 4, 2, 0, 1),
    Sketcher.Constraint("Horizontal", 0),
    Sketcher.Constraint("Vertical", 1),
    Sketcher.Constraint("Horizontal", 3),
    Sketcher.Constraint("Vertical", 4),
    Sketcher.Constraint("Horizontal", 5),
    Sketcher.Constraint("Coincident", 5, 1, 0, 2),
    Sketcher.Constraint("PointOnObject", 3, 2, -2),
    Sketcher.Constraint("PointOnObject", 5, 2, -2),
    Sketcher.Constraint("DistanceX", 0, 1, 0, 2, Q("3 mm")),
    Sketcher.Constraint("Angle", 2, Q("135 deg")),
    Sketcher.Constraint("DistanceY", 4, 1, 4, 2, Q("1.6 mm")),
    Sketcher.Constraint("DistanceY", 0, 2, -1, 1, Q("45 mm")),
    Sketcher.Constraint("DistanceX", 3, 2, 3, 1, Q("1.45 mm")),
])
groove12 = body.newObject("PartDesign::Groove", "Groove011")
groove12.Profile = sketch15
groove12.ReferenceAxis = (sketch15, ["Axis0"])
groove12.Angle = 360

sketch16 = body.newObject("Sketcher::SketchObject", "Sketch015")
sketch16.AttachmentSupport = (doc.getObject("YZ_Plane"), [""])
sketch16.MapMode = "FlatFace"
sketch16.AttachmentOffset = App.Placement(V(0, 0, 210.4), App.Rotation())
sketch16.addGeometry([
    Part.LineSegment(V(0, -27, 0), V(3, -27, 0)),
    Part.LineSegment(V(3, -27, 0), V(3, -30.1, 0)),
    Part.LineSegment(V(3, -30.1, 0), V(1.4, -28.6, 0)),
    Part.LineSegment(V(1.4, -28.6, 0), V(0, -28.6, 0)),
    Part.LineSegment(V(0, -28.6, 0), V(0, -27, 0)),
], False)
sketch16.addGeometry(Part.LineSegment(V(3, -27, 0), V(0, -27, 0)), True)
sketch16.addConstraint([
    Sketcher.Constraint("Coincident", 0, 2, 1, 1),
    Sketcher.Constraint("Coincident", 1, 2, 2, 1),
    Sketcher.Constraint("Coincident", 2, 2, 3, 1),
    Sketcher.Constraint("Coincident", 3, 2, 4, 1),
    Sketcher.Constraint("Coincident", 4, 2, 0, 1),
    Sketcher.Constraint("Horizontal", 0),
    Sketcher.Constraint("Vertical", 1),
    Sketcher.Constraint("Horizontal", 3),
    Sketcher.Constraint("Vertical", 4),
    Sketcher.Constraint("Horizontal", 5),
    Sketcher.Constraint("Coincident", 5, 1, 0, 2),
    Sketcher.Constraint("PointOnObject", 3, 2, -2),
    Sketcher.Constraint("PointOnObject", 5, 2, -2),
    Sketcher.Constraint("DistanceX", 0, 1, 0, 2, Q("3 mm")),
    Sketcher.Constraint("Angle", 2, Q("135 deg")),
    Sketcher.Constraint("DistanceY", 4, 1, 4, 2, Q("1.6 mm")),
    Sketcher.Constraint("DistanceX", 3, 2, 3, 1, Q("1.45 mm")),
    Sketcher.Constraint("DistanceY", 0, 2, -1, 1, Q("26.980567 mm")),
])
groove13 = body.newObject("PartDesign::Groove", "Groove012")
groove13.Profile = sketch16
groove13.ReferenceAxis = (sketch16, ["Axis0"])
groove13.Angle = 360

sketch17 = body.newObject("Sketcher::SketchObject", "Sketch016")
sketch17.AttachmentSupport = (doc.getObject("YZ_Plane"), [""])
sketch17.MapMode = "FlatFace"
sketch17.AttachmentOffset = App.Placement(V(0, 0, 163.3), App.Rotation())
sketch17.addGeometry([
    Part.LineSegment(V(0, -37, 0), V(3, -37, 0)),
    Part.LineSegment(V(3, -37, 0), V(3, -40.1, 0)),
    Part.LineSegment(V(3, -40.1, 0), V(1.4, -38.6, 0)),
    Part.LineSegment(V(1.4, -38.6, 0), V(0, -38.6, 0)),
    Part.LineSegment(V(0, -38.6, 0), V(0, -37, 0)),
], False)
sketch17.addGeometry(Part.LineSegment(V(3, -37, 0), V(0, -37, 0)), True)
sketch17.addConstraint([
    Sketcher.Constraint("Coincident", 0, 2, 1, 1),
    Sketcher.Constraint("Coincident", 1, 2, 2, 1),
    Sketcher.Constraint("Coincident", 2, 2, 3, 1),
    Sketcher.Constraint("Coincident", 3, 2, 4, 1),
    Sketcher.Constraint("Coincident", 4, 2, 0, 1),
    Sketcher.Constraint("Horizontal", 0),
    Sketcher.Constraint("Vertical", 1),
    Sketcher.Constraint("Horizontal", 3),
    Sketcher.Constraint("Vertical", 4),
    Sketcher.Constraint("Horizontal", 5),
    Sketcher.Constraint("Coincident", 5, 1, 0, 2),
    Sketcher.Constraint("PointOnObject", 3, 2, -2),
    Sketcher.Constraint("PointOnObject", 5, 2, -2),
    Sketcher.Constraint("DistanceX", 0, 1, 0, 2, Q("3 mm")),
    Sketcher.Constraint("Angle", 2, Q("135 deg")),
    Sketcher.Constraint("DistanceY", 4, 1, 4, 2, Q("1.6 mm")),
    Sketcher.Constraint("DistanceX", 3, 2, 3, 1, Q("1.45 mm")),
    Sketcher.Constraint("DistanceY", 0, 2, -1, 1, Q("36.991982 mm")),
])
groove14 = body.newObject("PartDesign::Groove", "Groove013")
groove14.Profile = sketch17
groove14.ReferenceAxis = (sketch17, ["Axis0"])
groove14.Angle = 360

sketch18 = body.newObject("Sketcher::SketchObject", "Sketch017")
sketch18.AttachmentSupport = (doc.getObject("YZ_Plane"), [""])
sketch18.MapMode = "FlatFace"
sketch18.AttachmentOffset = App.Placement(V(0, 0, 116.2), App.Rotation())
sketch18.addGeometry([
    Part.LineSegment(V(0, -47, 0), V(3, -47, 0)),
    Part.LineSegment(V(3, -47, 0), V(3, -50.2, 0)),
    Part.LineSegment(V(3, -50.2, 0), V(1.4, -48.6, 0)),
    Part.LineSegment(V(1.4, -48.6, 0), V(0, -48.6, 0)),
    Part.LineSegment(V(0, -48.6, 0), V(0, -47, 0)),
], False)
sketch18.addGeometry(Part.LineSegment(V(3, -47, 0), V(0, -47, 0)), True)
sketch18.addConstraint([
    Sketcher.Constraint("Coincident", 0, 2, 1, 1),
    Sketcher.Constraint("Coincident", 1, 2, 2, 1),
    Sketcher.Constraint("Coincident", 2, 2, 3, 1),
    Sketcher.Constraint("Coincident", 3, 2, 4, 1),
    Sketcher.Constraint("Coincident", 4, 2, 0, 1),
    Sketcher.Constraint("Horizontal", 0),
    Sketcher.Constraint("Vertical", 1),
    Sketcher.Constraint("Horizontal", 3),
    Sketcher.Constraint("Vertical", 4),
    Sketcher.Constraint("Horizontal", 5),
    Sketcher.Constraint("Coincident", 5, 1, 0, 2),
    Sketcher.Constraint("PointOnObject", 3, 2, -2),
    Sketcher.Constraint("PointOnObject", 5, 2, -2),
    Sketcher.Constraint("DistanceX", 0, 1, 0, 2, Q("3 mm")),
    Sketcher.Constraint("Angle", 2, Q("135 deg")),
    Sketcher.Constraint("DistanceY", 4, 1, 4, 2, Q("1.6 mm")),
    Sketcher.Constraint("DistanceX", 3, 2, 3, 1, Q("1.45 mm")),
    Sketcher.Constraint("DistanceY", 0, 2, -1, 1, Q("47.003396 mm")),
])
groove15 = body.newObject("PartDesign::Groove", "Groove014")
groove15.Profile = sketch18
groove15.ReferenceAxis = (sketch18, ["Axis0"])
groove15.Angle = 360

sketch19 = body.newObject("Sketcher::SketchObject", "Sketch018")
sketch19.AttachmentSupport = (doc.getObject("YZ_Plane"), [""])
sketch19.MapMode = "FlatFace"
sketch19.AttachmentOffset = App.Placement(V(0, 0, 69.1), App.Rotation())
sketch19.addGeometry([
    Part.LineSegment(V(0, -60, 0), V(3, -60, 0)),
    Part.LineSegment(V(3, -60, 0), V(3, -63.1, 0)),
    Part.LineSegment(V(3, -63.1, 0), V(1.4, -61.6, 0)),
    Part.LineSegment(V(1.4, -61.6, 0), V(0, -61.6, 0)),
    Part.LineSegment(V(0, -61.6, 0), V(0, -60, 0)),
], False)
sketch19.addGeometry(Part.LineSegment(V(3, -60, 0), V(0, -60, 0)), True)
sketch19.addConstraint([
    Sketcher.Constraint("Coincident", 0, 2, 1, 1),
    Sketcher.Constraint("Coincident", 1, 2, 2, 1),
    Sketcher.Constraint("Coincident", 2, 2, 3, 1),
    Sketcher.Constraint("Coincident", 3, 2, 4, 1),
    Sketcher.Constraint("Coincident", 4, 2, 0, 1),
    Sketcher.Constraint("Horizontal", 0),
    Sketcher.Constraint("Vertical", 1),
    Sketcher.Constraint("Horizontal", 3),
    Sketcher.Constraint("Vertical", 4),
    Sketcher.Constraint("Horizontal", 5),
    Sketcher.Constraint("Coincident", 5, 1, 0, 2),
    Sketcher.Constraint("PointOnObject", 3, 2, -2),
    Sketcher.Constraint("PointOnObject", 5, 2, -2),
    Sketcher.Constraint("DistanceX", 0, 1, 0, 2, Q("3 mm")),
    Sketcher.Constraint("Angle", 2, Q("135 deg")),
    Sketcher.Constraint("DistanceY", 4, 1, 4, 2, Q("1.6 mm")),
    Sketcher.Constraint("DistanceY", 0, 2, -1, 1, Q("60 mm")),
    Sketcher.Constraint("DistanceX", 3, 2, 3, 1, Q("1.45 mm")),
])
groove16 = body.newObject("PartDesign::Groove", "Groove015")
groove16.Profile = sketch19
groove16.ReferenceAxis = (sketch19, ["Axis0"])
groove16.Angle = 360

sketch20 = body.newObject("Sketcher::SketchObject", "Sketch019")
sketch20.AttachmentSupport = (doc.getObject("YZ_Plane"), [""])
sketch20.MapMode = "FlatFace"
sketch20.AttachmentOffset = App.Placement(V(0, 0, 22), App.Rotation())
sketch20.addGeometry([
    Part.LineSegment(V(0, -65, 0), V(3, -65, 0)),
    Part.LineSegment(V(3, -65, 0), V(3, -68.2, 0)),
    Part.LineSegment(V(3, -68.2, 0), V(1.4, -66.6, 0)),
    Part.LineSegment(V(1.4, -66.6, 0), V(0, -66.6, 0)),
    Part.LineSegment(V(0, -66.6, 0), V(0, -65, 0)),
], False)
sketch20.addGeometry(Part.LineSegment(V(3, -65, 0), V(0, -65, 0)), True)
sketch20.addConstraint([
    Sketcher.Constraint("Coincident", 0, 2, 1, 1),
    Sketcher.Constraint("Coincident", 1, 2, 2, 1),
    Sketcher.Constraint("Coincident", 2, 2, 3, 1),
    Sketcher.Constraint("Coincident", 3, 2, 4, 1),
    Sketcher.Constraint("Coincident", 4, 2, 0, 1),
    Sketcher.Constraint("Horizontal", 0),
    Sketcher.Constraint("Vertical", 1),
    Sketcher.Constraint("Horizontal", 3),
    Sketcher.Constraint("Vertical", 4),
    Sketcher.Constraint("Horizontal", 5),
    Sketcher.Constraint("Coincident", 5, 1, 0, 2),
    Sketcher.Constraint("PointOnObject", 3, 2, -2),
    Sketcher.Constraint("PointOnObject", 5, 2, -2),
    Sketcher.Constraint("DistanceX", 0, 1, 0, 2, Q("3 mm")),
    Sketcher.Constraint("Angle", 2, Q("135 deg")),
    Sketcher.Constraint("DistanceY", 4, 1, 4, 2, Q("1.6 mm")),
    Sketcher.Constraint("DistanceY", 0, 2, -1, 1, Q("65 mm")),
    Sketcher.Constraint("DistanceX", 3, 2, 3, 1, Q("1.45 mm")),
])
groove17 = body.newObject("PartDesign::Groove", "Groove016")
groove17.Profile = sketch20
groove17.ReferenceAxis = (sketch20, ["Axis0"])
groove17.Angle = 360

sketch21 = body.newObject("Sketcher::SketchObject", "Sketch020")
sketch21.AttachmentSupport = (doc.getObject("XZ_Plane"), [""])
sketch21.MapMode = "FlatFace"
sketch21.AttachmentOffset = App.Placement(V(0, 0, -3), App.Rotation())
sketch21.addGeometry([
    Part.LineSegment(V(-30, -30, 0), V(-30, 30, 0)),
    Part.LineSegment(V(-30, 30, 0), V(30, 30, 0)),
    Part.LineSegment(V(30, 30, 0), V(30, -30, 0)),
    Part.LineSegment(V(30, -30, 0), V(-30, -30, 0)),
], False)
sketch21.addConstraint([
    Sketcher.Constraint("Coincident", 0, 2, 1, 1),
    Sketcher.Constraint("Coincident", 1, 2, 2, 1),
    Sketcher.Constraint("Coincident", 2, 2, 3, 1),
    Sketcher.Constraint("Coincident", 3, 2, 0, 1),
    Sketcher.Constraint("Vertical", 0),
    Sketcher.Constraint("Horizontal", 1),
    Sketcher.Constraint("Vertical", 2),
    Sketcher.Constraint("Horizontal", 3),
    Sketcher.Constraint("Symmetric", 0, 2, 2, 2, -1, 1),
    Sketcher.Constraint("Equal", 3, 0),
    Sketcher.Constraint("DistanceX", 1, 1, 1, 2, Q("60 mm")),
])
pocket3 = body.newObject("PartDesign::Pocket", "Pocket002")
pocket3.Profile = sketch21
pocket3.Type = "ThroughAll"
pocket3.Reversed = True
doc.recompute()

fillet = body.newObject("PartDesign::Fillet", "Fillet")
fillet.Base = (pocket3, edges_at(pocket3, [
    (269.5, 1.5, 129.5),
    (199.5, 1.5, 149.5),
    (199.5, 1.5, 129.5),
    (-269.5, 1.5, 25.5),
    (-269.5, 1.5, -25.5),
    (-249.5, 1.5, -25.5),
    (-249.5, 1.5, 25.5),
    (269.5, 1.5, -25.5),
    (269.5, 1.5, 25.5),
    (249.5, 1.5, 25.5),
    (249.5, 1.5, -25.5),
    (-269.5, 1.5, -149.5),
    (-269.5, 1.5, 149.5),
    (199.5, 1.5, -149.5),
    (269.5, 1.5, -91.5),
    (249.5, 1.5, -91.5),
    (249.5, 1.5, -129.5),
    (199.5, 1.5, -129.5),
]))
fillet.Radius = 0.5

doc.recompute()
